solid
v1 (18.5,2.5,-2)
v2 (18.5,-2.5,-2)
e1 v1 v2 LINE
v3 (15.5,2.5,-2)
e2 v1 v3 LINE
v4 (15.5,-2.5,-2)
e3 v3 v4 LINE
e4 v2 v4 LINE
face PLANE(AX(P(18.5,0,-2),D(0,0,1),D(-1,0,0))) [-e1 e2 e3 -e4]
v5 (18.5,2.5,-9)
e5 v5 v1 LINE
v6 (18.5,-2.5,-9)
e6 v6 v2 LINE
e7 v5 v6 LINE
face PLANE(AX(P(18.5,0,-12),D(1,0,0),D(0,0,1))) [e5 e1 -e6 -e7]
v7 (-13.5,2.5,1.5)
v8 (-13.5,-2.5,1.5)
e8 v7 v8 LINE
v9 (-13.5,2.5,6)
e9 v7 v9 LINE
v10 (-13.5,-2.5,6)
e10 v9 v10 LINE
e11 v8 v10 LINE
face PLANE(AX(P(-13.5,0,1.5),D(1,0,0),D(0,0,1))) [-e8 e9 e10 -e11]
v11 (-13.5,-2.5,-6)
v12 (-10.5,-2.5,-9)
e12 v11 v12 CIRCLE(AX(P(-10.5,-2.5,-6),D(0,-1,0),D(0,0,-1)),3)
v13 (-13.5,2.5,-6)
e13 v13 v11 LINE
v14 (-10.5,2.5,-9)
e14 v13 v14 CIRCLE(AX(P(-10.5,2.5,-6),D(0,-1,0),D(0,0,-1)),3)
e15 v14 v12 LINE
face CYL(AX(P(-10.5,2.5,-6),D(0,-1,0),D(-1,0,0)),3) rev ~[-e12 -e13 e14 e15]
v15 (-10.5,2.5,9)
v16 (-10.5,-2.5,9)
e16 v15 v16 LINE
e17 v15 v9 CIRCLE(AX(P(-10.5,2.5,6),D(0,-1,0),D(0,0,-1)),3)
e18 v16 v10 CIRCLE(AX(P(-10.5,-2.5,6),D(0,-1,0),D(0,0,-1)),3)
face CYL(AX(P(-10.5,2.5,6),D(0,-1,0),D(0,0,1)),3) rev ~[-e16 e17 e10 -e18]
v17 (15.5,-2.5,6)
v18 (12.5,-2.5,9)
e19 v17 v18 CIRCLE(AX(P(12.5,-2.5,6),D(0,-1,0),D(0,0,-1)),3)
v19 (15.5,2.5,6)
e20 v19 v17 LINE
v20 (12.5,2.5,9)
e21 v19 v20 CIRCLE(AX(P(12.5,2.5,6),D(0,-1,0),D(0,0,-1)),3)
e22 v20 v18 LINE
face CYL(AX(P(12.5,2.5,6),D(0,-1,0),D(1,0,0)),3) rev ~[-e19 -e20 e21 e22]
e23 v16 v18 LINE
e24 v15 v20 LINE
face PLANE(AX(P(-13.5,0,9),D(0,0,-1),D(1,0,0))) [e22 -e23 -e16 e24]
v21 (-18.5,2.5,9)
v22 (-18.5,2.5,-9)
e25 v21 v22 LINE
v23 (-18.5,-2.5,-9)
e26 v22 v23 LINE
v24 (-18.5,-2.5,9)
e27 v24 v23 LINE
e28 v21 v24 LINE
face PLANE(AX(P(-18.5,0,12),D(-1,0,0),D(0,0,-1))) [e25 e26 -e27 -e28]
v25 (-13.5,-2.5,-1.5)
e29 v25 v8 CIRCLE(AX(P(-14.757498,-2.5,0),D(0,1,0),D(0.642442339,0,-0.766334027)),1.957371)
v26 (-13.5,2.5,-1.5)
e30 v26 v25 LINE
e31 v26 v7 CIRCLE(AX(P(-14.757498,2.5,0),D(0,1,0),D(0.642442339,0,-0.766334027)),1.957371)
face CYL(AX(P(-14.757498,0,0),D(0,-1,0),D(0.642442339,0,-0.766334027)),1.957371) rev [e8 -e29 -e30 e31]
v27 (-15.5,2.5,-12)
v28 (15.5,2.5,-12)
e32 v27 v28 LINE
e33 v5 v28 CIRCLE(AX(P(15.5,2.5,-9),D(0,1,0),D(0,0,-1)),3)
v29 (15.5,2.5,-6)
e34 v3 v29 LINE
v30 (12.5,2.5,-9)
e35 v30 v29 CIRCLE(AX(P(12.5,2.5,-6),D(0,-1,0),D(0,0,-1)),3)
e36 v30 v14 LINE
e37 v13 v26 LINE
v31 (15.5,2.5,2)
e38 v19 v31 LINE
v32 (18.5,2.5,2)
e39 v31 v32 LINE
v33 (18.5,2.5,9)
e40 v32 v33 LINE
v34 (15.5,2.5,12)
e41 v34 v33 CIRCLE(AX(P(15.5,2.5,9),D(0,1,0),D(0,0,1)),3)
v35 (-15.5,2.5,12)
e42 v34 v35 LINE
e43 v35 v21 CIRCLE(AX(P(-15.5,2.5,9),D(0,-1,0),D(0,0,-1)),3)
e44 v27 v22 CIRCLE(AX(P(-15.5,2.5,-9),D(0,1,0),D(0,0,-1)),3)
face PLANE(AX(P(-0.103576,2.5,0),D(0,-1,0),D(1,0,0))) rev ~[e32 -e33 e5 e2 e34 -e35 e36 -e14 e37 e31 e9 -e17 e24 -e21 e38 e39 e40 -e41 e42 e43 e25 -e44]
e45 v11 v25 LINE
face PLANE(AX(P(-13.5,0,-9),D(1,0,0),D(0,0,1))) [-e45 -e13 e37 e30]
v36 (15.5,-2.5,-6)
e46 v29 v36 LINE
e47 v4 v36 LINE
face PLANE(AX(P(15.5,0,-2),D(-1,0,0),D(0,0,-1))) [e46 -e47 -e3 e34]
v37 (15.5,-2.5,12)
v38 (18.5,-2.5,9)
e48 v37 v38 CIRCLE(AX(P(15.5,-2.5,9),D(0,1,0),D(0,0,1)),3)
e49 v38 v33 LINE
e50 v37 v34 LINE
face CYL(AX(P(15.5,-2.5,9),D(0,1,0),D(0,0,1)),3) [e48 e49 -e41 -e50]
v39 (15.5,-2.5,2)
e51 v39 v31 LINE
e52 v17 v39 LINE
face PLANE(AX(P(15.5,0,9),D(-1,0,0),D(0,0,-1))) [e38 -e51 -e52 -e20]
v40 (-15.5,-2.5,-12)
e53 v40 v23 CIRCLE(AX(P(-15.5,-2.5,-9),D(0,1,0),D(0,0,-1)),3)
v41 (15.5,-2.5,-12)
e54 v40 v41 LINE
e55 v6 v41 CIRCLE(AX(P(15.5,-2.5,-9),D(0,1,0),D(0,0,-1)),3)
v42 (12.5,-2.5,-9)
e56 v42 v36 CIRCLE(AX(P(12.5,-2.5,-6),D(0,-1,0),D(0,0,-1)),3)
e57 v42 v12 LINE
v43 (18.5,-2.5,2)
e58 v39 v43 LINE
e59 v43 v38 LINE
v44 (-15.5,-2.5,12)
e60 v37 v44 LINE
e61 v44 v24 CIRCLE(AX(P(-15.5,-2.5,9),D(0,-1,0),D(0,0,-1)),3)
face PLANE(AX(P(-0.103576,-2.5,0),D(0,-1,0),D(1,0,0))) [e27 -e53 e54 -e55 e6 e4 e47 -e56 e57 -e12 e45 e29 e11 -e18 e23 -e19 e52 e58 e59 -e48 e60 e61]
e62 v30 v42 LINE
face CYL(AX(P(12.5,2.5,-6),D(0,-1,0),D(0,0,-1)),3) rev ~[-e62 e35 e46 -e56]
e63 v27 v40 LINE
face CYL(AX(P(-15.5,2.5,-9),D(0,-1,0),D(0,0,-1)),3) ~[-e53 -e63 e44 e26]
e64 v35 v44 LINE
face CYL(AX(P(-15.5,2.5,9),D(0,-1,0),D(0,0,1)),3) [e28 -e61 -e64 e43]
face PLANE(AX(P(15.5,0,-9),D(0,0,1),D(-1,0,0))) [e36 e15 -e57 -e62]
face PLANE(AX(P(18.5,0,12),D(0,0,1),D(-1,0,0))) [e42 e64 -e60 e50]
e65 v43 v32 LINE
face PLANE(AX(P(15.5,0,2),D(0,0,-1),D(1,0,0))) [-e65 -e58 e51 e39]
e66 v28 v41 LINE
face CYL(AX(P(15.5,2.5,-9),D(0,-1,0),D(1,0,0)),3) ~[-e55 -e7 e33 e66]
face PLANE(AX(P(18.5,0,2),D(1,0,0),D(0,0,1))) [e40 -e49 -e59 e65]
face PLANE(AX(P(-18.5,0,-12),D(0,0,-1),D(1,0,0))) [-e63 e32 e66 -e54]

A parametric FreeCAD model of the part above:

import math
import FreeCAD as App
import Part
import Sketcher


def edges_at(feature, points):
    """Names of the edges that pass closest to the given points."""
    edges = feature.Shape.Edges
    near = lambda p: min(range(len(edges)), key=lambda i: edges[i].distToShape(Part.Vertex(*p))[0])
    return sorted({f"Edge{near(p) + 1}" for p in points})

doc = App.newDocument("Part")
body = doc.addObject("PartDesign::Body", "Body")

# Sketch on XZ plane
sketch1 = doc.addObject("Sketcher::SketchObject", "Sketch")
body.addObject(sketch1)
sketch1.AttachmentSupport = (doc.XZ_Plane, [""])
sketch1.MapMode = "FlatFace"
sketch1.addGeometry([
    Part.LineSegment(App.Vector(18.5, 12, 0), App.Vector(-18.5, 12, 0)),  # 0
    Part.LineSegment(App.Vector(-18.5, 12, 0), App.Vector(-18.5, -12, 0)),  # 1
    Part.LineSegment(App.Vector(-18.5, -12, 0), App.Vector(18.5, -12, 0)),  # 2
    Part.LineSegment(App.Vector(18.5, -12, 0), App.Vector(18.5, -2, 0)),  # 3
    Part.LineSegment(App.Vector(18.5, -2, 0), App.Vector(15.5, -2, 0)),  # 4
    Part.LineSegment(App.Vector(15.5, -2, 0), App.Vector(15.5, -9, 0)),  # 5
    Part.LineSegment(App.Vector(15.5, -9, 0), App.Vector(-13.5, -9, 0)),  # 6
    Part.LineSegment(App.Vector(-13.5, -9, 0), App.Vector(-13.5, -1.5, 0)),  # 7
    Part.ArcOfCircle(Part.Circle(App.Vector(-14.757498, 0, 0), App.Vector(0, 0, 1), 1.957371), math.radians(50.025819), math.radians(309.974181)),  # 8
    Part.LineSegment(App.Vector(-13.5, 1.5, 0), App.Vector(-13.5, 9, 0)),  # 9
    Part.LineSegment(App.Vector(-13.5, 9, 0), App.Vector(15.5, 9, 0)),  # 10
    Part.LineSegment(App.Vector(15.5, 9, 0), App.Vector(15.5, 2, 0)),  # 11
    Part.LineSegment(App.Vector(15.5, 2, 0), App.Vector(18.5, 2, 0)),  # 12
    Part.LineSegment(App.Vector(18.5, 2, 0), App.Vector(18.5, 12, 0)),  # 13
], False)
sketch1.addConstraint([
    Sketcher.Constraint("Coincident", 0, 2, 1, 1),
    Sketcher.Constraint("Coincident", 1, 2, 2, 1),
    Sketcher.Constraint("Coincident", 2, 2, 3, 1),
    Sketcher.Constraint("Coincident", 3, 2, 4, 1),
    Sketcher.Constraint("Coincident", 4, 2, 5, 1),
    Sketcher.Constraint("Coincident", 5, 2, 6, 1),
    Sketcher.Constraint("Coincident", 6, 2, 7, 1),
    Sketcher.Constraint("Coincident", 7, 2, 8, 2),
    Sketcher.Constraint("Coincident", 8, 1, 9, 1),
    Sketcher.Constraint("Coincident", 9, 2, 10, 1),
    Sketcher.Constraint("Coincident", 10, 2, 11, 1),
    Sketcher.Constraint("Coincident", 11, 2, 12, 1),
    Sketcher.Constraint("Coincident", 12, 2, 13, 1),
    Sketcher.Constraint("Coincident", 13, 2, 0, 1),
    Sketcher.Constraint("Horizontal", 0),
    Sketcher.Constraint("Vertical", 1),
    Sketcher.Constraint("Horizontal", 2),
    Sketcher.Constraint("Vertical", 3),
    Sketcher.Constraint("Horizontal", 4),
    Sketcher.Constraint("Vertical", 5),
    Sketcher.Constraint("Horizontal", 6),
    Sketcher.Constraint("Vertical", 7),
    Sketcher.Constraint("Vertical", 9),
    Sketcher.Constraint("Horizontal", 10),
    Sketcher.Constraint("Vertical", 11),
    Sketcher.Constraint("Horizontal", 12),
    Sketcher.Constraint("Vertical", 13),
    Sketcher.Constraint("Symmetric", 0, 2, 2, 2, -1, 1),
    Sketcher.Constraint("Symmetric", 7, 2, 8, 1, -1),
    Sketcher.Constraint("Symmetric", 5, 2, 10, 2, -1),
    Sketcher.Constraint("Symmetric", 3, 2, 12, 2, -1),
    Sketcher.Constraint("DistanceX", 0, 2, 0, 1, 37.0),
    Sketcher.Constraint("DistanceX", 4, 2, 4, 1, 3.0),
    Sketcher.Constraint("DistanceX", 6, 2, 6, 1, 29.0),
    Sketcher.Constraint("DistanceY", 1, 2, 1, 1, 24.0),
    Sketcher.Constraint("DistanceY", 3, 1, 3, 2, 10.0),
    Sketcher.Constraint("DistanceY", 5, 2, 5, 1, 7.0),
    Sketcher.Constraint("DistanceY", 7, 1, 7, 2, 7.5),
    Sketcher.Constraint("Radius", 8, 1.957371),
])
pad1 = doc.addObject("PartDesign::Pad", "Pad")
body.addObject(pad1)
pad1.Profile = sketch1
pad1.Length = 5
pad1.Midplane = True
doc.recompute()

fillet = doc.addObject("PartDesign::Fillet", "Fillet")
body.addObject(fillet)
fillet.Base = (pad1, edges_at(pad1, [
    (18.5, 0, 12),
    (18.5, 0, -12),
    (-18.5, 0, 12),
    (-18.5, 0, -12),
    (15.5, 0, -9),
    (15.5, 0, 9),
    (-13.5, 0, 9),
    (-13.5, 0, -9),
]))
fillet.Radius = 3

doc.recompute()
